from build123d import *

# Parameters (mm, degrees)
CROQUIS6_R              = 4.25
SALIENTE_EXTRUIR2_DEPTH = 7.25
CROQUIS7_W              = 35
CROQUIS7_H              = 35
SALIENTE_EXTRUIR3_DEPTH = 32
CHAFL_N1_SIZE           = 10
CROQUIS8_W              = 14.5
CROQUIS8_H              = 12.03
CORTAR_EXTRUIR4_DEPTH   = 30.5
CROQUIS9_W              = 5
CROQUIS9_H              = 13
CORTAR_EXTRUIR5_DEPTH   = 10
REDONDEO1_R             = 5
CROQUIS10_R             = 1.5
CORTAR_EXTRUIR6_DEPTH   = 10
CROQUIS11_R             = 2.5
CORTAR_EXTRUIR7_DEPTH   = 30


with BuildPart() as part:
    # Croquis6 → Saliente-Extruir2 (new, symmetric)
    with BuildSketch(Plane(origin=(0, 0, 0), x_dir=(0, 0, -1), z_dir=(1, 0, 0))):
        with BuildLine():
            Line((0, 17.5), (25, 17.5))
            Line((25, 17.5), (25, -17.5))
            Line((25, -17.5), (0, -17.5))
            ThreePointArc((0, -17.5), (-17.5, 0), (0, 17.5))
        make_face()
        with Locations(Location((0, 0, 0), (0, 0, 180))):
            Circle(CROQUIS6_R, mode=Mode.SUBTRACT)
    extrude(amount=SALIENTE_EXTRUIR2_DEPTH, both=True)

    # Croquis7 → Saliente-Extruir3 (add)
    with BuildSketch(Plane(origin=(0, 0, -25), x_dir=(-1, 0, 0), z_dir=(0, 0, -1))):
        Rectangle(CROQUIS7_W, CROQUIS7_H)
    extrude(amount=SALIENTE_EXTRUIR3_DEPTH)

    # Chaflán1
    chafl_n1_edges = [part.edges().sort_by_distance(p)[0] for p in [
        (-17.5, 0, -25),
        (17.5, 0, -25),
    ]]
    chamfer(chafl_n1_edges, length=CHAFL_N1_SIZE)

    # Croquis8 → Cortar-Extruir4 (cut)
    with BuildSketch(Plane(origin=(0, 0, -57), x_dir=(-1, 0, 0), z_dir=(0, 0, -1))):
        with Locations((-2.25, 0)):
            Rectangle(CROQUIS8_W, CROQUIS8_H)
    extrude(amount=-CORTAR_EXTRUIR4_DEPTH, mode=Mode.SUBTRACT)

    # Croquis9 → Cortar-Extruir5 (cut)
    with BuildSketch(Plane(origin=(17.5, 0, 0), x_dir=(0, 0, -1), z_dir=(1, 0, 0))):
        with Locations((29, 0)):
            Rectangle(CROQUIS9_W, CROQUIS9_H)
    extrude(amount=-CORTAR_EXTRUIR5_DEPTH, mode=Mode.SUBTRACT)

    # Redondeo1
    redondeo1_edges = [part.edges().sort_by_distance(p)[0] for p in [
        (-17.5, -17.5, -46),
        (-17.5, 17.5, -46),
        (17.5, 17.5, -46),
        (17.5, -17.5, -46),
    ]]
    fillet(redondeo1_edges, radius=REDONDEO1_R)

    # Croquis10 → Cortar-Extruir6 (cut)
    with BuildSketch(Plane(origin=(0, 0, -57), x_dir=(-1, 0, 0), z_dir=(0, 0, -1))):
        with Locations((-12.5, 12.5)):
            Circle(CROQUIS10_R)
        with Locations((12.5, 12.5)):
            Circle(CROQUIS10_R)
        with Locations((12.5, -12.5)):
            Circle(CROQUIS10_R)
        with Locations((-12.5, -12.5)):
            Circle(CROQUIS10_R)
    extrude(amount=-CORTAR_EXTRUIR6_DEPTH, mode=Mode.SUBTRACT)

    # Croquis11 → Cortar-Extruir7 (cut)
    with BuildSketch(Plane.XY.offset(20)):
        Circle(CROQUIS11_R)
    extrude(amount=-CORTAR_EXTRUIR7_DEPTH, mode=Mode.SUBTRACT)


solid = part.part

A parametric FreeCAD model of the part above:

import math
import FreeCAD as App
import Part
import Sketcher

V = App.Vector


def edges_at(feature, points):
    """Names of the edges that pass closest to the given points."""
    edges = feature.Shape.Edges
    near = lambda p: min(range(len(edges)), key=lambda i: edges[i].distToShape(Part.Vertex(*p))[0])
    return sorted({f"Edge{near(p) + 1}" for p in points})

doc = App.newDocument("Part")
body = doc.addObject("PartDesign::Body", "Body")

# Sketch on YZ plane
sketch1 = body.newObject("Sketcher::SketchObject", "Sketch")
sketch1.AttachmentSupport = (doc.getObject("YZ_Plane"), [""])
sketch1.MapMode = "FlatFace"
sketch1.addGeometry([
    Part.LineSegment(V(17.5, -25, 0), V(17.5, 0, 0)),  # 0
    Part.ArcOfCircle(Part.Circle(V(0, 0, 0), V(0, 0, 1), 17.5), math.radians(0), math.radians(180)),  # 1
    Part.LineSegment(V(-17.5, 0, 0), V(-17.5, -25, 0)),  # 2
    Part.LineSegment(V(-17.5, -25, 0), V(17.5, -25, 0)),  # 3
    Part.Circle(V(0, 0, 0), V(0, 0, 1), 4.2),  # 4
], False)
sketch1.addConstraint([
    Sketcher.Constraint("Tangent", 0, 2, 1, 1),
    Sketcher.Constraint("Tangent", 1, 2, 2, 1),
    Sketcher.Constraint("Coincident", 2, 2, 3, 1),
    Sketcher.Constraint("Coincident", 3, 2, 0, 1),
    Sketcher.Constraint("Vertical", 0),
    Sketcher.Constraint("Vertical", 2),
    Sketcher.Constraint("Horizontal", 3),
    Sketcher.Constraint("Coincident", 1, 3, -1, 1),
    Sketcher.Constraint("Coincident", 4, 3, -1, 1),
    Sketcher.Constraint("Diameter", 4, 8.5),
    Sketcher.Constraint("Radius", 1, 17.5),
    Sketcher.Constraint("DistanceY", 0, 1, 0, 2, 25.0),
])
pad1 = body.newObject("PartDesign::Pad", "Pad")
pad1.Profile = sketch1
pad1.Length = 14.5
pad1.Midplane = True

# Sketch on XY plane
sketch2 = body.newObject("Sketcher::SketchObject", "Sketch001")
sketch2.AttachmentSupport = (doc.getObject("XY_Plane"), [""])
sketch2.MapMode = "FlatFace"
sketch2.AttachmentOffset = App.Placement(V(0, 0, -25), App.Rotation())
sketch2.addGeometry([
    Part.LineSegment(V(18, 18, 0), V(18, -18, 0)),
    Part.LineSegment(V(18, -18, 0), V(-18, -18, 0)),
    Part.LineSegment(V(-18, -18, 0), V(-18, 18, 0)),
    Part.LineSegment(V(-18, 18, 0), V(18, 18, 0)),
], False)
sketch2.addConstraint([
    Sketcher.Constraint("Coincident", 0, 2, 1, 1),
    Sketcher.Constraint("Coincident", 1, 2, 2, 1),
    Sketcher.Constraint("Coincident", 2, 2, 3, 1),
    Sketcher.Constraint("Coincident", 3, 2, 0, 1),
    Sketcher.Constraint("Vertical", 0),
    Sketcher.Constraint("Horizontal", 1),
    Sketcher.Constraint("Vertical", 2),
    Sketcher.Constraint("Horizontal", 3),
    Sketcher.Constraint("Symmetric", 0, 2, 2, 2, -1, 1),
    Sketcher.Constraint("Equal", 3, 0),
    Sketcher.Constraint("DistanceX", 1, 2, 1, 1, 35.0),
])
pad2 = body.newObject("PartDesign::Pad", "Pad001")
pad2.Profile = sketch2
pad2.Length = 32
pad2.Reversed = True
doc.recompute()

chamfer = body.newObject("PartDesign::Chamfer", "Chamfer")
chamfer.Base = (pad2, edges_at(pad2, [(-17.5, 0, -25), (17.5, 0, -25)]))
chamfer.Size = 10

# Sketch on XY plane
sketch3 = body.newObject("Sketcher::SketchObject", "Sketch002")
sketch3.AttachmentSupport = (doc.getObject("XY_Plane"), [""])
sketch3.MapMode = "FlatFace"
sketch3.AttachmentOffset = App.Placement(V(0, 0, -57), App.Rotation())
sketch3.addGeometry([
    Part.LineSegment(V(10, 6, 0), V(10, -6, 0)),
    Part.LineSegment(V(10, -6, 0), V(-5, -6, 0)),
    Part.LineSegment(V(-5, -6, 0), V(-5, 6, 0)),
    Part.LineSegment(V(-5, 6, 0), V(10, 6, 0)),
], False)
sketch3.addConstraint([
    Sketcher.Constraint("Coincident", 0, 2, 1, 1),
    Sketcher.Constraint("Coincident", 1, 2, 2, 1),
    Sketcher.Constraint("Coincident", 2, 2, 3, 1),
    Sketcher.Constraint("Coincident", 3, 2, 0, 1),
    Sketcher.Constraint("Vertical", 0),
    Sketcher.Constraint("Horizontal", 1),
    Sketcher.Constraint("Vertical", 2),
    Sketcher.Constraint("Horizontal", 3),
    Sketcher.Constraint("DistanceX", 1, 2, 1, 1, 14.5),
    Sketcher.Constraint("DistanceX", 1, 2, -1, 1, 5.0),
    Sketcher.Constraint("DistanceY", 0, 2, 0, 1, 12.03),
    Sketcher.Constraint("DistanceY", 0, 2, -1, 1, 6.015),
])
pocket1 = body.newObject("PartDesign::Pocket", "Pocket")
pocket1.Profile = sketch3
pocket1.Length = 30.5
pocket1.Reversed = True

# Sketch on YZ plane
sketch4 = body.newObject("Sketcher::SketchObject", "Sketch003")
sketch4.AttachmentSupport = (doc.getObject("YZ_Plane"), [""])
sketch4.MapMode = "FlatFace"
sketch4.AttachmentOffset = App.Placement(V(0, 0, 17.5), App.Rotation())
sketch4.addGeometry([
    Part.LineSegment(V(6, -26, 0), V(-6, -26, 0)),
    Part.LineSegment(V(-6, -26, 0), V(-6, -32, 0)),
    Part.LineSegment(V(-6, -32, 0), V(6, -32, 0)),
    Part.LineSegment(V(6, -32, 0), V(6, -26, 0)),
], False)
sketch4.addConstraint([
    Sketcher.Constraint("Coincident", 0, 2, 1, 1),
    Sketcher.Constraint("Coincident", 1, 2, 2, 1),
    Sketcher.Constraint("Coincident", 2, 2, 3, 1),
    Sketcher.Constraint("Coincident", 3, 2, 0, 1),
    Sketcher.Constraint("Horizontal", 0),
    Sketcher.Constraint("Vertical", 1),
    Sketcher.Constraint("Horizontal", 2),
    Sketcher.Constraint("Vertical", 3),
    Sketcher.Constraint("DistanceX", 0, 2, 0, 1, 13.0),
    Sketcher.Constraint("DistanceY", 1, 2, 1, 1, 5.0),
    Sketcher.Constraint("DistanceX", 0, 2, -1, 1, 6.5),
    Sketcher.Constraint("DistanceY", 0, 2, -1, 1, 26.5),
])
pocket2 = body.newObject("PartDesign::Pocket", "Pocket001")
pocket2.Profile = sketch4
pocket2.Length = 10
doc.recompute()

fillet = body.newObject("PartDesign::Fillet", "Fillet")
fillet.Base = (pocket2, edges_at(pocket2, [
    (-17.5, -17.5, -46),
    (-17.5, 17.5, -46),
    (17.5, 17.5, -46),
    (17.5, -17.5, -46),
]))
fillet.Radius = 5

# Sketch on XY plane
sketch5 = body.newObject("Sketcher::SketchObject", "Sketch004")
sketch5.AttachmentSupport = (doc.getObject("XY_Plane"), [""])
sketch5.MapMode = "FlatFace"
sketch5.AttachmentOffset = App.Placement(V(0, 0, -57), App.Rotation())
sketch5.addGeometry([
    Part.Circle(V(12.5, 12.5, 0), V(0, 0, 1), 1.5),
    Part.Circle(V(-12.5, 12.5, 0), V(0, 0, 1), 1.5),
    Part.Circle(V(-12.5, -12.5, 0), V(0, 0, 1), 1.5),
    Part.Circle(V(12.5, -12.5, 0), V(0, 0, 1), 1.5),
], False)
sketch5.addConstraint([
    Sketcher.Constraint("Equal", 0, 1),
    Sketcher.Constraint("Equal", 1, 2),
    Sketcher.Constraint("Equal", 2, 3),
    Sketcher.Constraint("Symmetric", 0, 3, 2, 3, -1, 1),
    Sketcher.Constraint("Symmetric", 1, 3, 3, 3, -1, 1),
    Sketcher.Constraint("Symmetric", 0, 3, 1, 3, -2),
    Sketcher.Constraint("Diameter", 0, 3.0),
    Sketcher.Constraint("DistanceX", 1, 3, 0, 3, 25.0),
    Sketcher.Constraint("DistanceY", 2, 3, 1, 3, 25.0),
])
pocket3 = body.newObject("PartDesign::Pocket", "Pocket002")
pocket3.Profile = sketch5
pocket3.Length = 10
pocket3.Reversed = True

# Sketch on XY plane
sketch6 = body.newObject("Sketcher::SketchObject", "Sketch005")
sketch6.AttachmentSupport = (doc.getObject("XY_Plane"), [""])
sketch6.MapMode = "FlatFace"
sketch6.AttachmentOffset = App.Placement(V(0, 0, 20), App.Rotation())
sketch6.addGeometry(Part.Circle(V(0, 0, 0), V(0, 0, 1), 2.5), False)
sketch6.addConstraint([
    Sketcher.Constraint("Coincident", 0, 3, -1, 1),
    Sketcher.Constraint("Diameter", 0, 5.0),
])
pocket4 = body.newObject("PartDesign::Pocket", "Pocket003")
pocket4.Profile = sketch6
pocket4.Length = 30

doc.recompute()
